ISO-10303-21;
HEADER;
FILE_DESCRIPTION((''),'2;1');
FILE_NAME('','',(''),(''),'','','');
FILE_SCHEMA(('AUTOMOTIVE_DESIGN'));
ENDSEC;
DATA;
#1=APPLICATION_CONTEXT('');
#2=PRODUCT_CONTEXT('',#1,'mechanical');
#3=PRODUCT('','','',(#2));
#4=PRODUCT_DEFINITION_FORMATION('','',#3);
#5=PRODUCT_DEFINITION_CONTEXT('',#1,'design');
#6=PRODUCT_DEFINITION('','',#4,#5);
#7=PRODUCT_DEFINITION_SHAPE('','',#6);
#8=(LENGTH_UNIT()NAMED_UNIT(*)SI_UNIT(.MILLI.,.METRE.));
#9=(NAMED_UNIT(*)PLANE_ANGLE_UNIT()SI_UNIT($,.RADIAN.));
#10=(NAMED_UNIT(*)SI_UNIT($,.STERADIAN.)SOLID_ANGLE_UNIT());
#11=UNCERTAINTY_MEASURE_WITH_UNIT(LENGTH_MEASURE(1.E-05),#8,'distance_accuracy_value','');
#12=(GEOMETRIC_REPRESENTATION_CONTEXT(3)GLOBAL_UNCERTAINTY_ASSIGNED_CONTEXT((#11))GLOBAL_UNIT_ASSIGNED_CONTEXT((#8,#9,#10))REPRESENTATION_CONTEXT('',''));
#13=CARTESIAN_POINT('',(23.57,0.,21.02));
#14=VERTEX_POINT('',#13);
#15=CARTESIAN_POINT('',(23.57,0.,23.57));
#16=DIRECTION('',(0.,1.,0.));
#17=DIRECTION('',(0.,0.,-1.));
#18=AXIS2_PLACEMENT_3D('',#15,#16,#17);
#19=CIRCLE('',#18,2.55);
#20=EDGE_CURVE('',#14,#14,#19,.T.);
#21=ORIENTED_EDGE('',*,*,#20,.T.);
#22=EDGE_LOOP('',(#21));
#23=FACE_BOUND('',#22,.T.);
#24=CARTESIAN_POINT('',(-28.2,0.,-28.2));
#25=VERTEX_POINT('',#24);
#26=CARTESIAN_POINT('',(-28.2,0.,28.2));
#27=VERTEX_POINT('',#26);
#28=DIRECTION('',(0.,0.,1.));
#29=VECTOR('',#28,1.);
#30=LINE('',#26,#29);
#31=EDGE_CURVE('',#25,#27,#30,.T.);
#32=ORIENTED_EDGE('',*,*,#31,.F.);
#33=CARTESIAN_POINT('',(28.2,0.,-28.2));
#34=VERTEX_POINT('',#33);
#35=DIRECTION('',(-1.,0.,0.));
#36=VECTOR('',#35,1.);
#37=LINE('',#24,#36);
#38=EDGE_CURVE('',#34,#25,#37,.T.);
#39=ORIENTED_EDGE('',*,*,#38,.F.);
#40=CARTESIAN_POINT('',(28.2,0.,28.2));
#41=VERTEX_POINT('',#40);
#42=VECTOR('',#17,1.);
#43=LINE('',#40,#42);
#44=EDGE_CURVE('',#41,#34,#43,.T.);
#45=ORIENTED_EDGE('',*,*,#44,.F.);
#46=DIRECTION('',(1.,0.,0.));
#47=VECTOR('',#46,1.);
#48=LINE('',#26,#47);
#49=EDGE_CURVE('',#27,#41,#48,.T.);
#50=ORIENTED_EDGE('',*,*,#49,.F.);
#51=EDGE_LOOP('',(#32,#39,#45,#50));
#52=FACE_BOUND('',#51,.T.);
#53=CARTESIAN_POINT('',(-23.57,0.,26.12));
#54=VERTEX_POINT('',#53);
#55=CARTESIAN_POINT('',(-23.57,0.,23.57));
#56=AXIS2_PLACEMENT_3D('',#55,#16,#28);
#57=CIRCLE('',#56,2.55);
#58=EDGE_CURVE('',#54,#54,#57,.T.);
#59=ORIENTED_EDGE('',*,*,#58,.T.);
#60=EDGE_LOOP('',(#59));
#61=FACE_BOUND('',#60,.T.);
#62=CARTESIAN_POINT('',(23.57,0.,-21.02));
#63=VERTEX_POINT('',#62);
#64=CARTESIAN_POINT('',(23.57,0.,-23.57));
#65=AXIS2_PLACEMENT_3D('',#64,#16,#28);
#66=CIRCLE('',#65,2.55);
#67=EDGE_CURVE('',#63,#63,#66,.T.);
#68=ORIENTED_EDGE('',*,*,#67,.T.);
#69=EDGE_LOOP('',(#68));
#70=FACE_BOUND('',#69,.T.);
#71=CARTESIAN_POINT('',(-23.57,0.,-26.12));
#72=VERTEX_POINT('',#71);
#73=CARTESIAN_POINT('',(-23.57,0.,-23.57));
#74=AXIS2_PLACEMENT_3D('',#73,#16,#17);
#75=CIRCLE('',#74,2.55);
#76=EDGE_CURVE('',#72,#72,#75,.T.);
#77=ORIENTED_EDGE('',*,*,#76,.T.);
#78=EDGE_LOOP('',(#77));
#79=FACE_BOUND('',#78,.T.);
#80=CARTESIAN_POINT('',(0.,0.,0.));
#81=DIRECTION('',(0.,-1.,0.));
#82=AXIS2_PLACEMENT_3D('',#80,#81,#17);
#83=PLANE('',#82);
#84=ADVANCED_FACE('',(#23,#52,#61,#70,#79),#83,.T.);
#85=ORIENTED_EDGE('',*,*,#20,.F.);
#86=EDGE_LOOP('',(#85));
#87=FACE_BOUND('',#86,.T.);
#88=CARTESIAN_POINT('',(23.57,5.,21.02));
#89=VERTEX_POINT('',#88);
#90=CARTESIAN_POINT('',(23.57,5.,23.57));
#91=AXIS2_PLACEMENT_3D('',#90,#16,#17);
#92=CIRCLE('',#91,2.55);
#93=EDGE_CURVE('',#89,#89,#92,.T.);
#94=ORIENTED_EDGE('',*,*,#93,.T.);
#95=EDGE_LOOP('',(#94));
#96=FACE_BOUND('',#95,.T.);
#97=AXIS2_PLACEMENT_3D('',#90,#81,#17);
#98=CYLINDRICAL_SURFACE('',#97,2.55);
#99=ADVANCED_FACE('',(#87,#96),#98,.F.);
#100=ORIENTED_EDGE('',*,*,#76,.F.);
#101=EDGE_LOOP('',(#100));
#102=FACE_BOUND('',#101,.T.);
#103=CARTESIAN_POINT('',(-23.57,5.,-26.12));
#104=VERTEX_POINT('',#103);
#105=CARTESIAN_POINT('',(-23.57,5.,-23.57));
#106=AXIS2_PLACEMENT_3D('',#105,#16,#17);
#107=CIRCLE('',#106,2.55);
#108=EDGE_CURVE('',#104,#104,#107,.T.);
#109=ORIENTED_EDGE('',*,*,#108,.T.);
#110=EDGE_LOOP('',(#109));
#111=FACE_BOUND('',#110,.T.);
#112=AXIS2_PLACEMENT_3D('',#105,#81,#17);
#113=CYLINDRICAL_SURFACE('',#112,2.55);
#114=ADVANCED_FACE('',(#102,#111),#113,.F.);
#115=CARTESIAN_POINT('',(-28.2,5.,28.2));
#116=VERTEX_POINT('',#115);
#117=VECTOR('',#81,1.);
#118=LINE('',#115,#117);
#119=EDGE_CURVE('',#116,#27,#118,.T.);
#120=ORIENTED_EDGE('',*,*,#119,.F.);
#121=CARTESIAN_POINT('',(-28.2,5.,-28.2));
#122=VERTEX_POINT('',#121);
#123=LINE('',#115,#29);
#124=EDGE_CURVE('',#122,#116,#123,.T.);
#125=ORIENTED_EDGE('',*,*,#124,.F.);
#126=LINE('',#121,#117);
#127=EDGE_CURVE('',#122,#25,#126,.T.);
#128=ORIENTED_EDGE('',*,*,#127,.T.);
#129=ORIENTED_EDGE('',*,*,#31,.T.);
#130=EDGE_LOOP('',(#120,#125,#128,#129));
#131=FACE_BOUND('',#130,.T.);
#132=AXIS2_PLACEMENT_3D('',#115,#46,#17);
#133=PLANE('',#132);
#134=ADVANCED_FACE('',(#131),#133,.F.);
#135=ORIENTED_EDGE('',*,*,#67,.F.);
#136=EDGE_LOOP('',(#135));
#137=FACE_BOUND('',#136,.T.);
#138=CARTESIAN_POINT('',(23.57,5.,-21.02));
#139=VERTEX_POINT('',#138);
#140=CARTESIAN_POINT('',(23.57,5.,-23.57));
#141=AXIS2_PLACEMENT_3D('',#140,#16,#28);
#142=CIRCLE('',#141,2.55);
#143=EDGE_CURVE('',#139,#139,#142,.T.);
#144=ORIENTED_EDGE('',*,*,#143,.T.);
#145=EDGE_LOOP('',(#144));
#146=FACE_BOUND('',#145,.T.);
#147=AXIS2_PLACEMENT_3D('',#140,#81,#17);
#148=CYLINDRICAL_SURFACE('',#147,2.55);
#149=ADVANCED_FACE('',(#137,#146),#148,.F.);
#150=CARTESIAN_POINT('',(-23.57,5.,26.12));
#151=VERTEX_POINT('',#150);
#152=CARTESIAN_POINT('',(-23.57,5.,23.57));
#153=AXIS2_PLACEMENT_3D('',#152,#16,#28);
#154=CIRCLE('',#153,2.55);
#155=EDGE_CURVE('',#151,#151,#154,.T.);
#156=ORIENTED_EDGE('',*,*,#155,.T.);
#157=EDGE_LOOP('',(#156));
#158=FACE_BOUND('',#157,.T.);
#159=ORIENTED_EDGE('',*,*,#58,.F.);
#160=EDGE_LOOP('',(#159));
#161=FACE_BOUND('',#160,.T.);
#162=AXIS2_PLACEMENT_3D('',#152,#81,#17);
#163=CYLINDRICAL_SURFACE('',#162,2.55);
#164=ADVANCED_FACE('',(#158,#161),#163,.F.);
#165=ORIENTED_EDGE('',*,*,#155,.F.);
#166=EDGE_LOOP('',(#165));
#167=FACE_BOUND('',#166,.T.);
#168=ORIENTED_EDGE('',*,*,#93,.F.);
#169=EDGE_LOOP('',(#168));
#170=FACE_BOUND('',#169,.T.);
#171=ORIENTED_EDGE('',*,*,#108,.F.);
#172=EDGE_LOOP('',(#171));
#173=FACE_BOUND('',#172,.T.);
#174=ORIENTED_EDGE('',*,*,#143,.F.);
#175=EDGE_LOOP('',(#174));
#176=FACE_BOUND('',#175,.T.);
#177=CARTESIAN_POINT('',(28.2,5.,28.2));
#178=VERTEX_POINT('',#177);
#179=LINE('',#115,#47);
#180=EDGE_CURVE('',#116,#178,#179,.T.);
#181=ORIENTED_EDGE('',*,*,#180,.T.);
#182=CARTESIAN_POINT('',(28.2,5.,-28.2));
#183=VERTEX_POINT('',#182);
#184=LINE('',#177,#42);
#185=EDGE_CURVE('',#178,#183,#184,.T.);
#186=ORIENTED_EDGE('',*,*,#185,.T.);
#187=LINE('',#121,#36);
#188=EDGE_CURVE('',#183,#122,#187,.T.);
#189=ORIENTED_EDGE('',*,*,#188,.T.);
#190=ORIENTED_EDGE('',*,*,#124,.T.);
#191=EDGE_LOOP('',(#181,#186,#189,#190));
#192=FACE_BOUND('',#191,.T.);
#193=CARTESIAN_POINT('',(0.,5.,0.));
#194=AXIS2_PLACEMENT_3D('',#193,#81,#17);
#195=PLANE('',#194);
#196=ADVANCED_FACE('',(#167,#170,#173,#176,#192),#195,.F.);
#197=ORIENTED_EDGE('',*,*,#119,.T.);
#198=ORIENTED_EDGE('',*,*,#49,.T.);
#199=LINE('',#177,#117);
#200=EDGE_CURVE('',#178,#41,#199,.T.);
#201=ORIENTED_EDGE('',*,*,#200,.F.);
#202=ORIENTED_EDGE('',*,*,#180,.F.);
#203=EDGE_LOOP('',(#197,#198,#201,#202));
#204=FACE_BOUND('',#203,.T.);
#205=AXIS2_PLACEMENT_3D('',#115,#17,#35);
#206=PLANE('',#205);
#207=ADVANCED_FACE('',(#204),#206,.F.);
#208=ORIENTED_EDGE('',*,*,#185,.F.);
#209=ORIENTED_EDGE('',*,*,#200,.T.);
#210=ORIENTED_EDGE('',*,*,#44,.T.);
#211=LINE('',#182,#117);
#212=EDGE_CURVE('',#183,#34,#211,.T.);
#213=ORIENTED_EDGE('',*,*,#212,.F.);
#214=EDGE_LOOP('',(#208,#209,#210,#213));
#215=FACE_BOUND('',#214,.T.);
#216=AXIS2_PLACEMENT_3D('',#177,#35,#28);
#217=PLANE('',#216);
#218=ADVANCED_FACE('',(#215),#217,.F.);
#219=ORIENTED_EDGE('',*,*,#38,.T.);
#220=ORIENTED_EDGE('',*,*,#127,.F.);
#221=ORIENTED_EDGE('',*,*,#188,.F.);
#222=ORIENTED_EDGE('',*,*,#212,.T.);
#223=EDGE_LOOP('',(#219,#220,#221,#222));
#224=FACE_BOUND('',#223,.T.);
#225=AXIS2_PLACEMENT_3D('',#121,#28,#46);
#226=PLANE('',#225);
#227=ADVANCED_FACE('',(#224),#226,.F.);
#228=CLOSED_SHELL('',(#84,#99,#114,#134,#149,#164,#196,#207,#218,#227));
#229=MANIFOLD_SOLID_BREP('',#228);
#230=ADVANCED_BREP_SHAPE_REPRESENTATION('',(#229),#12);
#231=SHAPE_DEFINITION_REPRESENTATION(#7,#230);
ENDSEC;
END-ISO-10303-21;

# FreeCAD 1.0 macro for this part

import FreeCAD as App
import Part
import Sketcher
from FreeCAD import Vector


def add_polygon(sketch, points):
    """Adds a closed chain of lines whose ends are joined by coincident constraints."""
    first, n = sketch.GeometryCount, len(points)
    for a, b in zip(points, points[1:] + points[:1]):
        sketch.addGeometry(Part.LineSegment(App.Vector(*a, 0), App.Vector(*b, 0)), False)
    for i in range(n):
        sketch.addConstraint(Sketcher.Constraint("Coincident", first + i, 2, first + (i + 1) % n, 1))

doc = App.newDocument("Part")
body = doc.addObject("PartDesign::Body", "Body")

# Sketch on XZ plane
sketch1 = doc.addObject("Sketcher::SketchObject", "Sketch")
body.addObject(sketch1)
sketch1.AttachmentSupport = (doc.XZ_Plane, [""])
sketch1.MapMode = "FlatFace"
add_polygon(sketch1, [(-28.2, -28.2), (-28.2, 28.2), (28.2, 28.2), (28.2, -28.2)])  # lines 0-3
sketch1.addGeometry(Part.Circle(Vector(-23.57, 23.57, 0), Vector(0, 0, 1), 2.55), False)  # 4
sketch1.addGeometry(Part.Circle(Vector(23.57, 23.57, 0), Vector(0, 0, 1), 2.55), False)  # 5
sketch1.addGeometry(Part.Circle(Vector(-23.57, -23.57, 0), Vector(0, 0, 1), 2.55), False)  # 6
sketch1.addGeometry(Part.Circle(Vector(23.57, -23.57, 0), Vector(0, 0, 1), 2.55), False)  # 7
sketch1.addConstraint([
    Sketcher.Constraint("Vertical", 0),
    Sketcher.Constraint("Horizontal", 1),
    Sketcher.Constraint("Vertical", 2),
    Sketcher.Constraint("Horizontal", 3),
    Sketcher.Constraint("Equal", 4, 5),
    Sketcher.Constraint("Equal", 5, 6),
    Sketcher.Constraint("Equal", 6, 7),
    Sketcher.Constraint("Symmetric", 5, 3, 6, 3, -1, 1),
    Sketcher.Constraint("Symmetric", 4, 3, 7, 3, -1, 1),
    Sketcher.Constraint("Symmetric", 0, 2, 2, 2, -1, 1),
    Sketcher.Constraint("Symmetric", 4, 3, 5, 3, -2),
    Sketcher.Constraint("Equal", 3, 0),
    Sketcher.Constraint("Diameter", 4, 5.1),
    Sketcher.Constraint("DistanceX", 1, 1, 1, 2, 56.4),
    Sketcher.Constraint("DistanceX", 4, 3, -1, 1, 23.57),
    Sketcher.Constraint("DistanceY", -1, 1, 4, 3, 23.57),
])
pad1 = doc.addObject("PartDesign::Pad", "Pad")
body.addObject(pad1)
pad1.Profile = sketch1
pad1.Length = 5
pad1.Reversed = True

doc.recompute()
